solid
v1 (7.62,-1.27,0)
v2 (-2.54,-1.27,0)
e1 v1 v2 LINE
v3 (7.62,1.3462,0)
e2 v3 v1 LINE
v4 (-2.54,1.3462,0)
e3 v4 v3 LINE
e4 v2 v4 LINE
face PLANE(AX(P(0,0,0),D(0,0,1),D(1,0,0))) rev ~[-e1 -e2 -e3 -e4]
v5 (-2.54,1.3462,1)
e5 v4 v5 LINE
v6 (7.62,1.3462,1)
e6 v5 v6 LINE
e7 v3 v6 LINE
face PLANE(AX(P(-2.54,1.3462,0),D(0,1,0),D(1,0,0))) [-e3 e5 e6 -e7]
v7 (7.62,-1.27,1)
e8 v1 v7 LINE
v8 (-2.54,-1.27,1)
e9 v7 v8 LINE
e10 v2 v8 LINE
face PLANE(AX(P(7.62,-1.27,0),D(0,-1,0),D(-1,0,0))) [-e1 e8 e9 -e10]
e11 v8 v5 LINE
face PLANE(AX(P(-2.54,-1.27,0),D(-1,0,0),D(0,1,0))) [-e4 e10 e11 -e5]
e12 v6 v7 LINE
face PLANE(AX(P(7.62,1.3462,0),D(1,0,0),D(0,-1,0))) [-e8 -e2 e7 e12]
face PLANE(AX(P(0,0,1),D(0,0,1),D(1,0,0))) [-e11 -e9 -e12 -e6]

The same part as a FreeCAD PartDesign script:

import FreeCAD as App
import Part
import Sketcher

V = App.Vector
Q = App.Units.Quantity


def add_polygon(sketch, points):
    """Adds a closed chain of lines whose ends are joined by coincident constraints."""
    first, n = sketch.GeometryCount, len(points)
    for a, b in zip(points, points[1:] + points[:1]):
        sketch.addGeometry(Part.LineSegment(App.Vector(*a, 0), App.Vector(*b, 0)), False)
    for i in range(n):
        sketch.addConstraint(Sketcher.Constraint("Coincident", first + i, 2, first + (i + 1) % n, 1))

doc = App.newDocument("Part")
body = doc.addObject("PartDesign::Body", "Body")

# Sketch on XY plane
sketch1 = body.newObject("Sketcher::SketchObject", "Sketch")
sketch1.AttachmentSupport = (doc.getObject("XY_Plane"), [""])
sketch1.MapMode = "FlatFace"
add_polygon(sketch1, [(7.6, 1.3), (-2.5, 1.3), (-2.5, -1.3), (7.6, -1.3)])  # lines 0-3
sketch1.addConstraint([
    Sketcher.Constraint("Horizontal", 0),
    Sketcher.Constraint("Vertical", 1),
    Sketcher.Constraint("Horizontal", 2),
    Sketcher.Constraint("Vertical", 3),
    Sketcher.Constraint("DistanceX", 0, 2, 0, 1, Q("0.4 in")),
    Sketcher.Constraint("DistanceX", 0, 2, -1, 1, Q("0.1 in")),
    Sketcher.Constraint("DistanceY", 1, 2, 1, 1, Q("0.103 in")),
    Sketcher.Constraint("DistanceY", 1, 2, -1, 1, Q("0.05 in")),
])
pad1 = body.newObject("PartDesign::Pad", "Pad")
pad1.Profile = sketch1
pad1.Length = 1

doc.recompute()
